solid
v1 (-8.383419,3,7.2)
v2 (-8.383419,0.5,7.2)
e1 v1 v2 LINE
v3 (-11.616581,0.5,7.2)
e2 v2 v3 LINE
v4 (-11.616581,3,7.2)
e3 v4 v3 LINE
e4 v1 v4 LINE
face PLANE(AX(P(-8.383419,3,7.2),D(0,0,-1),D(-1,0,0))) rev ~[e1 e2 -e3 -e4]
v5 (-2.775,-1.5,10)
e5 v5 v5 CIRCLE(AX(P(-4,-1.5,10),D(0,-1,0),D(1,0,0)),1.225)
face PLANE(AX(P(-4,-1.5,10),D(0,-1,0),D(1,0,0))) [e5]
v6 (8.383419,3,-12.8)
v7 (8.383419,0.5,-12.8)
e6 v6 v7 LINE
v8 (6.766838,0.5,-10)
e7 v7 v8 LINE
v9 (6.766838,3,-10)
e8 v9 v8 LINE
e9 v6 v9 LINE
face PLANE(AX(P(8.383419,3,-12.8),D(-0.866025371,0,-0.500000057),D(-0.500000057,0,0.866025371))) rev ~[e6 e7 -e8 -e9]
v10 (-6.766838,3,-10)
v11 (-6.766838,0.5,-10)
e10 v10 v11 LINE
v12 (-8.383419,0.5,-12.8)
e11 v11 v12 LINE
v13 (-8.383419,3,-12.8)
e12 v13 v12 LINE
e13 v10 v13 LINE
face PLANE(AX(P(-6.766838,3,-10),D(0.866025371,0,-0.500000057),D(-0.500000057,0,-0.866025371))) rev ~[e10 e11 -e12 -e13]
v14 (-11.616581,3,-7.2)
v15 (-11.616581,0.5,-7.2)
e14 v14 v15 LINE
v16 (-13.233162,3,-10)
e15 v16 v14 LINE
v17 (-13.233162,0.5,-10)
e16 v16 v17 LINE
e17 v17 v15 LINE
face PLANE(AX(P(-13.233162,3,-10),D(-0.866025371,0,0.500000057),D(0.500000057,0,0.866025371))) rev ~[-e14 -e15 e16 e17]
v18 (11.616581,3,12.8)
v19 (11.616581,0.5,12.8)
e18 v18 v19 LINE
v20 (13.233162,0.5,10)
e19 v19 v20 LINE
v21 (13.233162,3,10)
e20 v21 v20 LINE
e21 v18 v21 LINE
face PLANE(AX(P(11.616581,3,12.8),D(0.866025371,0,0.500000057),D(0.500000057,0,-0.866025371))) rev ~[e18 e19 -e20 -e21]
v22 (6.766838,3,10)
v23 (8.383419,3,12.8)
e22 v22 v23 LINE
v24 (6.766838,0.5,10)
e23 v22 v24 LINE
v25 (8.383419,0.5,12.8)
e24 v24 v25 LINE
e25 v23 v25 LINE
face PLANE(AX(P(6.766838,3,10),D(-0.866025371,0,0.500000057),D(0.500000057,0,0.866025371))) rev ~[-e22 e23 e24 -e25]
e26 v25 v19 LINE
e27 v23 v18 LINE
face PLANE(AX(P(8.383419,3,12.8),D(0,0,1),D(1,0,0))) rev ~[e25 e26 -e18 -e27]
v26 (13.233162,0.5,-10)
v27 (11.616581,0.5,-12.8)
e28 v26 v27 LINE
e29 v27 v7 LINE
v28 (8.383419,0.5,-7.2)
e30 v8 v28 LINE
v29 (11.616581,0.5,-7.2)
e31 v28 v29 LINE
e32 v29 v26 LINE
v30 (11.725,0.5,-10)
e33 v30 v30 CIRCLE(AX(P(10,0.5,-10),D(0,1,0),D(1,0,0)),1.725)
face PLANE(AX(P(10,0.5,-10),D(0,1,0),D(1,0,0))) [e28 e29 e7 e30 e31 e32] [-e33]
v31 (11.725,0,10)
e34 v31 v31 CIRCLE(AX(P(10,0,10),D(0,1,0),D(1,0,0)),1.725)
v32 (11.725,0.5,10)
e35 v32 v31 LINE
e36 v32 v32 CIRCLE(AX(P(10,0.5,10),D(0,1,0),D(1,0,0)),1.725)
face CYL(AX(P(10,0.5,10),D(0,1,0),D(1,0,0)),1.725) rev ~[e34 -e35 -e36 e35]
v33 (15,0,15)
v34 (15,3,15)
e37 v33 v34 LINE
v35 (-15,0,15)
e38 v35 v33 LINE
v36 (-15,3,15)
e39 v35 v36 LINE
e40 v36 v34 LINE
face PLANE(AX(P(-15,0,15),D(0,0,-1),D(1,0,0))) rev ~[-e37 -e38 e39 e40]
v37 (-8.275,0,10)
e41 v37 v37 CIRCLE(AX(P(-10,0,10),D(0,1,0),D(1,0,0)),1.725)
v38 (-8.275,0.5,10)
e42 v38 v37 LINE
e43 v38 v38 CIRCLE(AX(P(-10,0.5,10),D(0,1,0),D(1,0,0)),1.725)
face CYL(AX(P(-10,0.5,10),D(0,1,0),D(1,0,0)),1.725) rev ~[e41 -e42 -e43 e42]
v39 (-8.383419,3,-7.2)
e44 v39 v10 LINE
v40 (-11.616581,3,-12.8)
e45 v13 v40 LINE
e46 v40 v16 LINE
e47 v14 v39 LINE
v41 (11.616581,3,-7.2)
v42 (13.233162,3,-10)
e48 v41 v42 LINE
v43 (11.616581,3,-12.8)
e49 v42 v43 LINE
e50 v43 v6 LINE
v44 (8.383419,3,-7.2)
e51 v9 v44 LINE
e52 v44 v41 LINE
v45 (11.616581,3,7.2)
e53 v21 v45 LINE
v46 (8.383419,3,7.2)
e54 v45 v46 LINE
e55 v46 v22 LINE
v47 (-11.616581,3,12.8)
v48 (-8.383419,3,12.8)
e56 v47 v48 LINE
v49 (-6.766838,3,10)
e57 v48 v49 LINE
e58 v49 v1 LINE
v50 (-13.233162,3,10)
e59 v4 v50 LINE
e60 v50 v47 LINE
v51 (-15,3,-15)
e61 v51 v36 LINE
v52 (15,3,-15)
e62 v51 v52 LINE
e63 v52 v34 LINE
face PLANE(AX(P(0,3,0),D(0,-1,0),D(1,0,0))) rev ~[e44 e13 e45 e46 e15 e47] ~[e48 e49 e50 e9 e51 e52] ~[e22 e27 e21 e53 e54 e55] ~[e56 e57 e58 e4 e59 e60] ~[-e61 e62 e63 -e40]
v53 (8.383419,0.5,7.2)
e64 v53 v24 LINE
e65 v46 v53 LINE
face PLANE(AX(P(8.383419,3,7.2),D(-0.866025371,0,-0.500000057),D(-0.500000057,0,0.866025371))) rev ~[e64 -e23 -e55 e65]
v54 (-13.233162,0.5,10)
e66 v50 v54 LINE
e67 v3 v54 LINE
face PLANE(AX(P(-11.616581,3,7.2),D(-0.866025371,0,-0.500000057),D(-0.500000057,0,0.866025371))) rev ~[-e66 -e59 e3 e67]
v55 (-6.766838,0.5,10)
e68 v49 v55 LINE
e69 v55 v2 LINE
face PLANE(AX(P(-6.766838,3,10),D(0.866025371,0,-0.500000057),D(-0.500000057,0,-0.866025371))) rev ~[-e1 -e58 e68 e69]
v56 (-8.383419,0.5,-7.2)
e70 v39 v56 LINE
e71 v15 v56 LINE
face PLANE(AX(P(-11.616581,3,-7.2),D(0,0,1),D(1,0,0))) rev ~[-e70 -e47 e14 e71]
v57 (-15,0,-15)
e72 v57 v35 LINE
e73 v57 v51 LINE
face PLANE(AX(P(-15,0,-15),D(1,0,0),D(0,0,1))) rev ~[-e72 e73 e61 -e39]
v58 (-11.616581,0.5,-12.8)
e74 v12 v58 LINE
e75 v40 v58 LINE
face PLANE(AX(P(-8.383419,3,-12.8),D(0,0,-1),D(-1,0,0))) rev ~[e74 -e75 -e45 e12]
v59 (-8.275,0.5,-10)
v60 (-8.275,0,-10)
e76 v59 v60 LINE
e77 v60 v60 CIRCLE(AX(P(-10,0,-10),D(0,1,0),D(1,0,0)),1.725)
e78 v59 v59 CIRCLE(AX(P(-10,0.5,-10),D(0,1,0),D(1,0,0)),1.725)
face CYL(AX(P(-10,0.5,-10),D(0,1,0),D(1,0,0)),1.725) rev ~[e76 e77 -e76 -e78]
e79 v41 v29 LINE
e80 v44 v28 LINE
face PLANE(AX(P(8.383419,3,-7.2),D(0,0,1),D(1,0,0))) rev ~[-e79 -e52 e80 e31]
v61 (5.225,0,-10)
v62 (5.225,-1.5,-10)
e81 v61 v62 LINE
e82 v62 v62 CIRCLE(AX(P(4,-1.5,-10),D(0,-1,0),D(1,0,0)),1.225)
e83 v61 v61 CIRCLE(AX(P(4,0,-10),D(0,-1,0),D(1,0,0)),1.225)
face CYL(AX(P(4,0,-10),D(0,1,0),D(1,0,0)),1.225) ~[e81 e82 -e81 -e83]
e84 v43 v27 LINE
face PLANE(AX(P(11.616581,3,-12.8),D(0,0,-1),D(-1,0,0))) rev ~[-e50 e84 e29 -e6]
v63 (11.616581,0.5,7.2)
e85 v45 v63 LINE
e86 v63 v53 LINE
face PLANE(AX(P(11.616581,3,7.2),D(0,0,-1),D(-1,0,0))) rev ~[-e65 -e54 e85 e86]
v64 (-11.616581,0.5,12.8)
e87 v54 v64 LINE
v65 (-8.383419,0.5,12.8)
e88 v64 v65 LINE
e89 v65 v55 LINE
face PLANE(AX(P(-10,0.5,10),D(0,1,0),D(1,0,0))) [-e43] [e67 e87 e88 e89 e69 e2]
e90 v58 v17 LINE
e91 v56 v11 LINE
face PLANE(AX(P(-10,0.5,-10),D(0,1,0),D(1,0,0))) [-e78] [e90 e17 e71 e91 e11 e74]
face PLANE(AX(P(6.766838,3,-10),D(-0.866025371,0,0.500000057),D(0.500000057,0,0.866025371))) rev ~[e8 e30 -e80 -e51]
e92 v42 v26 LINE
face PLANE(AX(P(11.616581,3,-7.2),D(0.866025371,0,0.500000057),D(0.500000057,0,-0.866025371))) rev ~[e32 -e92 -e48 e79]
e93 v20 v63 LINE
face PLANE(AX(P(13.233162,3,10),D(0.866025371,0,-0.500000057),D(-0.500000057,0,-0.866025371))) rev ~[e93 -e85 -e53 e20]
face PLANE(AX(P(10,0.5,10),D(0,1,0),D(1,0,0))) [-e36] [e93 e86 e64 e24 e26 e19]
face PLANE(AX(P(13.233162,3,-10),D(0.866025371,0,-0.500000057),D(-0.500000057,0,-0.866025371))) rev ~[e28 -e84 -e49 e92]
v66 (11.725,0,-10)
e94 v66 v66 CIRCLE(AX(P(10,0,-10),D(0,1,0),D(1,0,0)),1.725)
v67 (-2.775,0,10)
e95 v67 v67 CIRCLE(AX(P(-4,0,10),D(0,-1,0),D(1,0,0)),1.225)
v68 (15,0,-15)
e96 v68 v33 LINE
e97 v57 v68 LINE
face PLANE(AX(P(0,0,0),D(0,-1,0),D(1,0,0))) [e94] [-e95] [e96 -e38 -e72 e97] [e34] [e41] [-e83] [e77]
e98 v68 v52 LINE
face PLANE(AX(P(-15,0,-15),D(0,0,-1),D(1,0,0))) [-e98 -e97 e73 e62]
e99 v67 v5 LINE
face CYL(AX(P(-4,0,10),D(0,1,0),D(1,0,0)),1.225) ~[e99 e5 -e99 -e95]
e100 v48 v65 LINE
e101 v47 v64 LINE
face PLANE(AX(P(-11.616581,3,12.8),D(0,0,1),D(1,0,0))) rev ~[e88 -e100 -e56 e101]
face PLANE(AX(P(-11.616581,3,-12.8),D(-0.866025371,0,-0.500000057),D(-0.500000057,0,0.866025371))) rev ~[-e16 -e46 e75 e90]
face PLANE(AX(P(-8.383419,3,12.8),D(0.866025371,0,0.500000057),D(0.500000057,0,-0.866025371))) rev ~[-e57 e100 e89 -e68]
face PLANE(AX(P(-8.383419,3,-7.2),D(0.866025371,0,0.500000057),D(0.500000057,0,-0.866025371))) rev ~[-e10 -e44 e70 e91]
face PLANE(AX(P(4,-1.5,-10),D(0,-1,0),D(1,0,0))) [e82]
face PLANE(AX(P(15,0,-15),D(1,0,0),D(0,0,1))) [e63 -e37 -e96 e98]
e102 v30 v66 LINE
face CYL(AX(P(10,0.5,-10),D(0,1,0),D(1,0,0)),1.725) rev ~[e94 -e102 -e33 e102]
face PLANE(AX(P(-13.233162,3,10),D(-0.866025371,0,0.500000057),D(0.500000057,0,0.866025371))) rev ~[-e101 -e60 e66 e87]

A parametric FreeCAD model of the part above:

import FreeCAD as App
import Part
import Sketcher
Q = App.Units.Quantity


def add_polygon(sketch, points):
    """Adds a closed chain of lines whose ends are joined by coincident constraints."""
    first, n = sketch.GeometryCount, len(points)
    for a, b in zip(points, points[1:] + points[:1]):
        sketch.addGeometry(Part.LineSegment(App.Vector(*a, 0), App.Vector(*b, 0)), False)
    for i in range(n):
        sketch.addConstraint(Sketcher.Constraint("Coincident", first + i, 2, first + (i + 1) % n, 1))

doc = App.newDocument("Part")
params = doc.addObject("Spreadsheet::Sheet", "Params")
for row, (alias, value) in enumerate([
    ("sketch1_width", "30 mm"),
    ("pad1_length", "3 mm"),
    ("pocket1_length", "2.5 mm"),
    ("sketch3_diameter", "3.45 mm"),
    ("pocket2_length", "5 mm"),
    ("sketch4_diameter", "2.45 mm"),
    ("pad2_length", "1.5 mm"),
], start=1):
    params.set(f"A{row}", alias)
    params.set(f"B{row}", "=" + value)
    params.setAlias(f"B{row}", alias)

body = doc.addObject("PartDesign::Body", "Body")

sketch1 = doc.addObject("Sketcher::SketchObject", "Sketch")
body.addObject(sketch1)
sketch1.AttachmentSupport = (doc.XZ_Plane, [""])
sketch1.MapMode = "FlatFace"
add_polygon(sketch1, [(-15, 15), (-15, -15), (15, -15), (15, 15)])
sketch1.addConstraint([
    Sketcher.Constraint("Vertical", 0),
    Sketcher.Constraint("Horizontal", 1),
    Sketcher.Constraint("Vertical", 2),
    Sketcher.Constraint("Horizontal", 3),
    Sketcher.Constraint("Symmetric", 0, 2, 2, 2, -1, 1),
    Sketcher.Constraint("Equal", 3, 0),
    Sketcher.Constraint("DistanceX", 1, 1, 1, 2, Q("30 mm")),
])
sketch1.setExpression("Constraints[10]", "Params.sketch1_width")
pad1 = doc.addObject("PartDesign::Pad", "Pad")
body.addObject(pad1)
pad1.Profile = sketch1
pad1.setExpression("Length", "Params.pad1_length")
pad1.Reversed = True

sketch2 = doc.addObject("Sketcher::SketchObject", "Sketch001")
body.addObject(sketch2)
sketch2.AttachmentSupport = (doc.XZ_Plane, [""])
sketch2.MapMode = "FlatFace"
sketch2.AttachmentOffset = App.Placement(App.Vector(0, 0, -3), App.Rotation())
add_polygon(sketch2, [(-11.6, -7.2), (-8.4, -7.2), (-6.8, -10), (-8.4, -12.8), (-11.6, -12.8), (-13.2, -10)])
add_polygon(sketch2, [(11.6, -7.2), (13.2, -10), (11.6, -12.8), (8.4, -12.8), (6.8, -10), (8.4, -7.2)])
add_polygon(sketch2, [(11.6, 12.8), (13.2, 10), (11.6, 7.2), (8.4, 7.2), (6.8, 10), (8.4, 12.8)])
add_polygon(sketch2, [(-8.4, 7.2), (-11.6, 7.2), (-13.2, 10), (-11.6, 12.8), (-8.4, 12.8), (-6.8, 10)])
sketch2.addConstraint([
    Sketcher.Constraint("Horizontal", 0),
    Sketcher.Constraint("Horizontal", 3),
    Sketcher.Constraint("Horizontal", 8),
    Sketcher.Constraint("Horizontal", 11),
    Sketcher.Constraint("Horizontal", 14),
    Sketcher.Constraint("Horizontal", 17),
    Sketcher.Constraint("Horizontal", 18),
    Sketcher.Constraint("Horizontal", 21),
    Sketcher.Constraint("Symmetric", 4, 2, 12, 2, -1, 1),
    Sketcher.Constraint("Symmetric", 5, 2, 13, 2, -1, 1),
    Sketcher.Constraint("Symmetric", 1, 2, 15, 2, -1, 1),
    Sketcher.Constraint("Symmetric", 2, 2, 16, 2, -1, 1),
    Sketcher.Constraint("Symmetric", 11, 2, 18, 2, -1, 1),
    Sketcher.Constraint("Symmetric", 6, 2, 19, 2, -1, 1),
    Sketcher.Constraint("Symmetric", 7, 2, 20, 2, -1, 1),
    Sketcher.Constraint("Symmetric", 9, 2, 22, 2, -1, 1),
    Sketcher.Constraint("Symmetric", 4, 2, 6, 2, -2),
    Sketcher.Constraint("Symmetric", 3, 2, 7, 2, -2),
    Sketcher.Constraint("Symmetric", 1, 2, 9, 2, -2),
    Sketcher.Constraint("Symmetric", 0, 2, 10, 2, -2),
    Sketcher.Constraint("Parallel", 1, 4),
    Sketcher.Constraint("Parallel", 2, 5),
    Sketcher.Constraint("Parallel", 4, 6),
    Sketcher.Constraint("Parallel", 5, 7),
    Sketcher.Constraint("Parallel", 6, 9),
    Sketcher.Constraint("Parallel", 9, 12),
    Sketcher.Constraint("Parallel", 12, 15),
    Sketcher.Constraint("Parallel", 19, 22),
    Sketcher.Constraint("Parallel", 20, 23),
    Sketcher.Constraint("Horizontal", 1, 2, 4, 2),
    Sketcher.Constraint("Vertical", 0, 2, 2, 2),
    Sketcher.Constraint("Angle", 1, Q("-59.999996 deg")),
    Sketcher.Constraint("DistanceY", 1, 2, -1, 1, Q("10 mm")),
    Sketcher.Constraint("DistanceX", 1, 2, 6, 2, Q("20 mm")),
    Sketcher.Constraint("DistanceY", 0, 2, -1, 1, Q("7.2 mm")),
    Sketcher.Constraint("DistanceX", 0, 1, 0, 2, Q("3.233162 mm")),
])
pocket1 = doc.addObject("PartDesign::Pocket", "Pocket")
body.addObject(pocket1)
pocket1.Profile = sketch2
pocket1.setExpression("Length", "Params.pocket1_length")
pocket1.Reversed = True

sketch3 = doc.addObject("Sketcher::SketchObject", "Sketch002")
body.addObject(sketch3)
sketch3.AttachmentSupport = (doc.XZ_Plane, [""])
sketch3.MapMode = "FlatFace"
sketch3.AttachmentOffset = App.Placement(App.Vector(0, 0, -0.5), App.Rotation())
sketch3.addGeometry([
    Part.Circle(App.Vector(-10, -10, 0), App.Vector(0, 0, 1), 1.7),
    Part.Circle(App.Vector(10, -10, 0), App.Vector(0, 0, 1), 1.7),
    Part.Circle(App.Vector(10, 10, 0), App.Vector(0, 0, 1), 1.7),
    Part.Circle(App.Vector(-10, 10, 0), App.Vector(0, 0, 1), 1.7),
], False)
sketch3.addConstraint([
    Sketcher.Constraint("Equal", 0, 1),
    Sketcher.Constraint("Equal", 1, 2),
    Sketcher.Constraint("Equal", 2, 3),
    Sketcher.Constraint("Symmetric", 0, 3, 2, 3, -1, 1),
    Sketcher.Constraint("Symmetric", 1, 3, 3, 3, -1, 1),
    Sketcher.Constraint("Symmetric", 0, 3, 1, 3, -2),
    Sketcher.Constraint("Diameter", 0, Q("3.45 mm")),
    Sketcher.Constraint("DistanceX", 0, 3, -1, 1, Q("10 mm")),
    Sketcher.Constraint("DistanceY", 0, 3, -1, 1, Q("10 mm")),
])
sketch3.setExpression("Constraints[6]", "Params.sketch3_diameter")
pocket2 = doc.addObject("PartDesign::Pocket", "Pocket001")
body.addObject(pocket2)
pocket2.Profile = sketch3
pocket2.setExpression("Length", "Params.pocket2_length")
pocket2.Reversed = True

sketch4 = doc.addObject("Sketcher::SketchObject", "Sketch003")
body.addObject(sketch4)
sketch4.AttachmentSupport = (doc.XZ_Plane, [""])
sketch4.MapMode = "FlatFace"
sketch4.addGeometry([
    Part.Circle(App.Vector(4, -10, 0), App.Vector(0, 0, 1), 1.2),
    Part.Circle(App.Vector(-4, 10, 0), App.Vector(0, 0, 1), 1.2),
], False)
sketch4.addConstraint([
    Sketcher.Constraint("Equal", 0, 1),
    Sketcher.Constraint("Symmetric", 0, 3, 1, 3, -1, 1),
    Sketcher.Constraint("Diameter", 0, Q("2.45 mm")),
    Sketcher.Constraint("DistanceX", -1, 1, 0, 3, Q("4 mm")),
    Sketcher.Constraint("DistanceY", 0, 3, -1, 1, Q("10 mm")),
])
sketch4.setExpression("Constraints[2]", "Params.sketch4_diameter")
pad2 = doc.addObject("PartDesign::Pad", "Pad001")
body.addObject(pad2)
pad2.Profile = sketch4
pad2.setExpression("Length", "Params.pad2_length")

doc.recompute()
